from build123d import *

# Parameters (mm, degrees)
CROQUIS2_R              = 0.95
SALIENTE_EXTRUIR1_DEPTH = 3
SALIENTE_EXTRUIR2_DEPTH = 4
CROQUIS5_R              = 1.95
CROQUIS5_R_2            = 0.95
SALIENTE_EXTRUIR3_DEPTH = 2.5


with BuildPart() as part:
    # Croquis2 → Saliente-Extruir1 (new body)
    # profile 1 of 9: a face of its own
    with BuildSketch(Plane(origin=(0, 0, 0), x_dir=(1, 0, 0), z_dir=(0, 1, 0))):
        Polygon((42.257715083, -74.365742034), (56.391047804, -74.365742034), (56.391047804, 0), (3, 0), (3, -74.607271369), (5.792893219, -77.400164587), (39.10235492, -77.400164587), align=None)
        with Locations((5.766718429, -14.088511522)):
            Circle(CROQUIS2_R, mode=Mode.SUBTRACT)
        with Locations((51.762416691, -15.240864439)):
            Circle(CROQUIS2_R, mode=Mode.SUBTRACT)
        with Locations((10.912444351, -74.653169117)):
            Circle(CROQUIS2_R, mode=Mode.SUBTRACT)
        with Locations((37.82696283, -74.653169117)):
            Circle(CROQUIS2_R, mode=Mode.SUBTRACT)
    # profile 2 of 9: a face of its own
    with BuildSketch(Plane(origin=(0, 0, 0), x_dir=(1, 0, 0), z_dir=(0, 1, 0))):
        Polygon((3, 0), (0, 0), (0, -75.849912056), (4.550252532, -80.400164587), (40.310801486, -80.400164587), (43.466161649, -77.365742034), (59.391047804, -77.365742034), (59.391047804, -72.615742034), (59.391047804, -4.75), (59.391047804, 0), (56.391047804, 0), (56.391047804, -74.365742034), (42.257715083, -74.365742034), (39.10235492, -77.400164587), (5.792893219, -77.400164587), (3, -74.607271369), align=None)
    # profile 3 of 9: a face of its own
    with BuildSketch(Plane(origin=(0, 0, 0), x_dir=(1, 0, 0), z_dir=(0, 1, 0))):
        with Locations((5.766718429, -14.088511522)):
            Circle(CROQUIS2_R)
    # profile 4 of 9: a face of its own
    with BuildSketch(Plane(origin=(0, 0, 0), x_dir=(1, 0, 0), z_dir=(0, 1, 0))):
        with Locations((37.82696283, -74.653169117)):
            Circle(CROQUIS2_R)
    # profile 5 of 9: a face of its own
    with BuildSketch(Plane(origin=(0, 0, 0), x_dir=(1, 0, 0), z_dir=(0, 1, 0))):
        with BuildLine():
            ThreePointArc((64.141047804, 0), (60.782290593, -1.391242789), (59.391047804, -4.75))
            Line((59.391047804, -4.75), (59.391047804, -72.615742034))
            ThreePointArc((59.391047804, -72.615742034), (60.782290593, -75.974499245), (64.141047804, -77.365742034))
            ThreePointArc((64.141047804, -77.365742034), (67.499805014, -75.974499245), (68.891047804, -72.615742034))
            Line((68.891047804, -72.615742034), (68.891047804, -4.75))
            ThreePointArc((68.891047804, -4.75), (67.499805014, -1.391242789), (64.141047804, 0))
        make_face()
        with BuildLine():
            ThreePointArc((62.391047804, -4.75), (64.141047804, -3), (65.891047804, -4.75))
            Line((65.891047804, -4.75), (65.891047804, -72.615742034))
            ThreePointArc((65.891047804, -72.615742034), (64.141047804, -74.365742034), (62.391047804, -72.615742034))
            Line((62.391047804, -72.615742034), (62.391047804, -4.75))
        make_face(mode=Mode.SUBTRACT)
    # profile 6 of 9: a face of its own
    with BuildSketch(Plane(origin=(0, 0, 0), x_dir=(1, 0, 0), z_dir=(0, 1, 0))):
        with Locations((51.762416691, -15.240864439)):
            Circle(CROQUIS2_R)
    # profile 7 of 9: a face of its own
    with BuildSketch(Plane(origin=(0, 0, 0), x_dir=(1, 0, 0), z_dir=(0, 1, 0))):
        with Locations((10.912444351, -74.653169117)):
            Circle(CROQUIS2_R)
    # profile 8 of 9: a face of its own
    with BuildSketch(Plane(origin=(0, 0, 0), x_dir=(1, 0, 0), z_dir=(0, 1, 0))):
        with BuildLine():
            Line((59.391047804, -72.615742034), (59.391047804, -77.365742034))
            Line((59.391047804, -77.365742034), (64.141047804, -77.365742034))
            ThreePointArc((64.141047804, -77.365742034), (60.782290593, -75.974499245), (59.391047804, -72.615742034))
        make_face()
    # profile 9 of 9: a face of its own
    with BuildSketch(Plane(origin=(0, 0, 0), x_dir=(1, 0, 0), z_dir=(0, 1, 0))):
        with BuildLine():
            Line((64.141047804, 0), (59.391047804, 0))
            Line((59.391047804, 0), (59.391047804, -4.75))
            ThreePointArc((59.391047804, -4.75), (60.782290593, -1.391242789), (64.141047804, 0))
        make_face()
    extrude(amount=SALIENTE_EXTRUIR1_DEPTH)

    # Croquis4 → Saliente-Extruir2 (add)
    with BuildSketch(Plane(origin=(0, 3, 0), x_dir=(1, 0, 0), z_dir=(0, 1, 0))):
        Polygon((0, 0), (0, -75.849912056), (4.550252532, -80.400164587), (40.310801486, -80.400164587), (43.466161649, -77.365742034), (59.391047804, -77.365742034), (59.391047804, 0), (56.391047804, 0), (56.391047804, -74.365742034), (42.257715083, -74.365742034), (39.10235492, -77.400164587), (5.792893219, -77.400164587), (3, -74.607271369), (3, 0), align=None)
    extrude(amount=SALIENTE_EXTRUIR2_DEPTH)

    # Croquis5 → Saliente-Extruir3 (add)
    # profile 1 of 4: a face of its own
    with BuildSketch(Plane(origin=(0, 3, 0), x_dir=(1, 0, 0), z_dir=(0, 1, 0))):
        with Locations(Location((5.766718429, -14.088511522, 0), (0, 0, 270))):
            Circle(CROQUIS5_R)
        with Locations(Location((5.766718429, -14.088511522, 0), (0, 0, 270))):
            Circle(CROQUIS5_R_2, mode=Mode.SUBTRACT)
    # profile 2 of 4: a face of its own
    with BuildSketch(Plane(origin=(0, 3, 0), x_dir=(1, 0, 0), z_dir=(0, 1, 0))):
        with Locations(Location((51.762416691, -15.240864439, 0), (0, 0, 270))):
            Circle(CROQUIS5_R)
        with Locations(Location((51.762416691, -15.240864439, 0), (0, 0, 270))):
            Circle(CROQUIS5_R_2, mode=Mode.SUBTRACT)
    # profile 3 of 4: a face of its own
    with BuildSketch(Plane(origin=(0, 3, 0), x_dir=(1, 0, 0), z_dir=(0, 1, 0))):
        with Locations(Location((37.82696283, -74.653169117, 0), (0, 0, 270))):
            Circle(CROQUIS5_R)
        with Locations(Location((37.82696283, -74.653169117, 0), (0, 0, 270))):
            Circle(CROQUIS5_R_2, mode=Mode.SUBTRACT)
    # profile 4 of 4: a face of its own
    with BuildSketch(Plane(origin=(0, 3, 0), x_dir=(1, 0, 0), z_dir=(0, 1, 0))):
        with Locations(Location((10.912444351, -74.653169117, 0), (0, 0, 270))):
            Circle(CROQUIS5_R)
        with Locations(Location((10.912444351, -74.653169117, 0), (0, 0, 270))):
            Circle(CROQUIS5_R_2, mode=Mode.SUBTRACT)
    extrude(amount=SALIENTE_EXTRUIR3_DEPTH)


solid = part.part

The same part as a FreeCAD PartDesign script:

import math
import FreeCAD as App
import Part
import Sketcher

V = App.Vector
Q = App.Units.Quantity


def add_polygon(sketch, points):
    """Adds a closed chain of lines whose ends are joined by coincident constraints."""
    first, n = sketch.GeometryCount, len(points)
    for a, b in zip(points, points[1:] + points[:1]):
        sketch.addGeometry(Part.LineSegment(App.Vector(*a, 0), App.Vector(*b, 0)), False)
    for i in range(n):
        sketch.addConstraint(Sketcher.Constraint("Coincident", first + i, 2, first + (i + 1) % n, 1))

doc = App.newDocument("Part")
params = doc.addObject("Spreadsheet::Sheet", "Params")
for row, (alias, value) in enumerate([
    ("sketch1_radius", "4.75 mm"),
    ("sketch1_radius2", "1.75 mm"),
    ("pad1_length", "3 mm"),
    ("sketch2_width", "3 mm"),
    ("pad2_length", "4 mm"),
    ("sketch3_diameter", "3.9 mm"),
    ("sketch3_diameter2", "1.9 mm"),
    ("pad3_length", "2.5 mm"),
], start=1):
    params.set(f"A{row}", alias)
    params.set(f"B{row}", "=" + value)
    params.setAlias(f"B{row}", alias)

body = doc.addObject("PartDesign::Body", "Body")

# Sketch on XZ plane
sketch1 = body.newObject("Sketcher::SketchObject", "Sketch")
sketch1.AttachmentSupport = (doc.getObject("XZ_Plane"), [""])
sketch1.MapMode = "FlatFace"
sketch1.addGeometry(Part.LineSegment(V(0, 0, 0), V(0, 75.8, 0)), False)
sketch1.addGeometry(Part.LineSegment(V(0, 75.8, 0), V(4.6, 80.4, 0)), False)
sketch1.addGeometry(Part.LineSegment(V(4.6, 80.4, 0), V(40.3, 80.4, 0)), False)
sketch1.addGeometry(Part.LineSegment(V(40.3, 80.4, 0), V(43.5, 77.4, 0)), False)
sketch1.addGeometry(Part.LineSegment(V(43.5, 77.4, 0), V(64.1, 77.4, 0)), False)
sketch1.addGeometry(Part.ArcOfCircle(Part.Circle(V(64.1, 72.6, 0), V(0, 0, 1), 4.8), math.radians(0), math.radians(90)), False)
sketch1.addGeometry(Part.LineSegment(V(68.9, 72.6, 0), V(68.9, 4.8, 0)), False)
sketch1.addGeometry(Part.ArcOfCircle(Part.Circle(V(64.1, 4.8, 0), V(0, 0, 1), 4.8), math.radians(-90), math.radians(0)), False)
sketch1.addGeometry(Part.LineSegment(V(64.1, 0, 0), V(0, 0, 0)), False)
sketch1.addGeometry(Part.ArcOfCircle(Part.Circle(V(64.1, 4.8, 0), V(0, 0, 1), 1.8), math.radians(180), math.radians(360)), False)
sketch1.addGeometry(Part.LineSegment(V(65.9, 4.8, 0), V(65.9, 72.6, 0)), False)
sketch1.addGeometry(Part.ArcOfCircle(Part.Circle(V(64.1, 72.6, 0), V(0, 0, 1), 1.8), math.radians(0), math.radians(180)), False)
sketch1.addGeometry(Part.LineSegment(V(62.4, 72.6, 0), V(62.4, 4.8, 0)), False)
sketch1.addConstraint(Sketcher.Constraint("Coincident", 0, 2, 1, 1))
sketch1.addConstraint(Sketcher.Constraint("Coincident", 1, 2, 2, 1))
sketch1.addConstraint(Sketcher.Constraint("Coincident", 2, 2, 3, 1))
sketch1.addConstraint(Sketcher.Constraint("Coincident", 3, 2, 4, 1))
sketch1.addConstraint(Sketcher.Constraint("Tangent", 4, 2, 5, 2))
sketch1.addConstraint(Sketcher.Constraint("Tangent", 5, 1, 6, 1))
sketch1.addConstraint(Sketcher.Constraint("Tangent", 6, 2, 7, 2))
sketch1.addConstraint(Sketcher.Constraint("Tangent", 7, 1, 8, 1))
sketch1.addConstraint(Sketcher.Constraint("Coincident", 8, 2, 0, 1))
sketch1.addConstraint(Sketcher.Constraint("Tangent", 9, 2, 10, 1))
sketch1.addConstraint(Sketcher.Constraint("Tangent", 10, 2, 11, 1))
sketch1.addConstraint(Sketcher.Constraint("Tangent", 11, 2, 12, 1))
sketch1.addConstraint(Sketcher.Constraint("Tangent", 12, 2, 9, 1))
sketch1.addConstraint(Sketcher.Constraint("Vertical", 0))
sketch1.addConstraint(Sketcher.Constraint("Horizontal", 2))
sketch1.addConstraint(Sketcher.Constraint("Horizontal", 4))
sketch1.addConstraint(Sketcher.Constraint("Vertical", 6))
sketch1.addConstraint(Sketcher.Constraint("Horizontal", 8))
sketch1.addConstraint(Sketcher.Constraint("Vertical", 10))
sketch1.addConstraint(Sketcher.Constraint("Vertical", 12))
sketch1.addConstraint(Sketcher.Constraint("Coincident", 8, 2, -1, 1))
sketch1.addConstraint(Sketcher.Constraint("Coincident", 9, 3, 7, 3))
sketch1.addConstraint(Sketcher.Constraint("Coincident", 11, 3, 5, 3))
sketch1.addConstraint(Sketcher.Constraint("Angle", 1, Q("45 deg")))
sketch1.addConstraint(Sketcher.Constraint("Radius", 5, 4.75))
sketch1.addConstraint(Sketcher.Constraint("Radius", 9, 1.75))
sketch1.addConstraint(Sketcher.Constraint("DistanceX", 2, 1, 2, 2, 35.760549))
sketch1.addConstraint(Sketcher.Constraint("DistanceX", -1, 1, 2, 2, 40.310801))
sketch1.addConstraint(Sketcher.Constraint("DistanceX", 4, 1, 4, 2, 20.674886))
sketch1.addConstraint(Sketcher.Constraint("DistanceX", 8, 2, 8, 1, 64.141048))
sketch1.addConstraint(Sketcher.Constraint("DistanceY", 0, 1, 0, 2, 75.849912))
sketch1.addConstraint(Sketcher.Constraint("DistanceY", 6, 2, 6, 1, 67.865742))
sketch1.setExpression("Constraints[24]", "Params.sketch1_radius")
sketch1.setExpression("Constraints[25]", "Params.sketch1_radius2")
pad1 = body.newObject("PartDesign::Pad", "Pad")
pad1.Profile = sketch1
pad1.setExpression("Length", "Params.pad1_length")
pad1.Reversed = True

# Sketch on XZ plane
sketch2 = body.newObject("Sketcher::SketchObject", "Sketch001")
sketch2.AttachmentSupport = (doc.getObject("XZ_Plane"), [""])
sketch2.MapMode = "FlatFace"
sketch2.AttachmentOffset = App.Placement(V(0, 0, -3), App.Rotation())
add_polygon(sketch2, [(0, 0), (0, 75.8), (4.6, 80.4), (40.3, 80.4), (43.5, 77.4), (59.4, 77.4), (59.4, 0), (56.4, 0), (56.4, 74.4), (42.3, 74.4), (39.1, 77.4), (5.8, 77.4), (3, 74.6), (3, 0)])  # lines 0-13
sketch2.addConstraint(Sketcher.Constraint("Vertical", 0))
sketch2.addConstraint(Sketcher.Constraint("Horizontal", 2))
sketch2.addConstraint(Sketcher.Constraint("Horizontal", 4))
sketch2.addConstraint(Sketcher.Constraint("Vertical", 5))
sketch2.addConstraint(Sketcher.Constraint("Horizontal", 6))
sketch2.addConstraint(Sketcher.Constraint("Vertical", 7))
sketch2.addConstraint(Sketcher.Constraint("Horizontal", 8))
sketch2.addConstraint(Sketcher.Constraint("Horizontal", 10))
sketch2.addConstraint(Sketcher.Constraint("Vertical", 12))
sketch2.addConstraint(Sketcher.Constraint("Horizontal", 13))
sketch2.addConstraint(Sketcher.Constraint("Coincident", 13, 2, -1, 1))
sketch2.addConstraint(Sketcher.Constraint("PointOnObject", 5, 2, -1))
sketch2.addConstraint(Sketcher.Constraint("Parallel", 3, 9))
sketch2.addConstraint(Sketcher.Constraint("Parallel", 1, 11))
sketch2.addConstraint(Sketcher.Constraint("Equal", 6, 13))
sketch2.addConstraint(Sketcher.Constraint("Equal", 3, 9))
sketch2.addConstraint(Sketcher.Constraint("DistanceX", 6, 2, 6, 1, 3.0))
sketch2.addConstraint(Sketcher.Constraint("Angle", 1, Q("45 deg")))
sketch2.addConstraint(Sketcher.Constraint("DistanceY", 7, 2, 4, 2, 3.0))
sketch2.addConstraint(Sketcher.Constraint("DistanceX", 2, 1, 2, 2, 35.760549))
sketch2.addConstraint(Sketcher.Constraint("DistanceX", 10, 2, 10, 1, 33.309462))
sketch2.addConstraint(Sketcher.Constraint("DistanceY", 12, 2, 12, 1, 74.607271))
sketch2.addConstraint(Sketcher.Constraint("DistanceX", -1, 1, 2, 2, 40.310801))
sketch2.addConstraint(Sketcher.Constraint("DistanceX", 4, 1, 4, 2, 15.924886))
sketch2.addConstraint(Sketcher.Constraint("DistanceX", 8, 2, 8, 1, 14.133333))
sketch2.addConstraint(Sketcher.Constraint("DistanceY", 5, 2, 5, 1, 77.365742))
sketch2.addConstraint(Sketcher.Constraint("DistanceX", -1, 1, 3, 2, 43.466162))
sketch2.setExpression("Constraints[30]", "Params.sketch2_width")
pad2 = body.newObject("PartDesign::Pad", "Pad001")
pad2.Profile = sketch2
pad2.setExpression("Length", "Params.pad2_length")
pad2.Reversed = True

# Sketch on XZ plane
sketch3 = body.newObject("Sketcher::SketchObject", "Sketch002")
sketch3.AttachmentSupport = (doc.getObject("XZ_Plane"), [""])
sketch3.MapMode = "FlatFace"
sketch3.AttachmentOffset = App.Placement(V(0, 0, -3), App.Rotation())
sketch3.addGeometry(Part.Circle(V(5.8, 14.1, 0), V(0, 0, 1), 1.9), False)
sketch3.addGeometry(Part.Circle(V(5.8, 14.1, 0), V(0, 0, 1), 0.9), False)
sketch3.addGeometry(Part.Circle(V(51.8, 15.2, 0), V(0, 0, 1), 1.9), False)
sketch3.addGeometry(Part.Circle(V(51.8, 15.2, 0), V(0, 0, 1), 0.9), False)
sketch3.addGeometry(Part.Circle(V(37.8, 74.7, 0), V(0, 0, 1), 1.9), False)
sketch3.addGeometry(Part.Circle(V(37.8, 74.7, 0), V(0, 0, 1), 0.9), False)
sketch3.addGeometry(Part.Circle(V(10.9, 74.7, 0), V(0, 0, 1), 1.9), False)
sketch3.addGeometry(Part.Circle(V(10.9, 74.7, 0), V(0, 0, 1), 0.9), False)
sketch3.addConstraint(Sketcher.Constraint("Coincident", 1, 3, 0, 3))
sketch3.addConstraint(Sketcher.Constraint("Coincident", 3, 3, 2, 3))
sketch3.addConstraint(Sketcher.Constraint("Coincident", 5, 3, 4, 3))
sketch3.addConstraint(Sketcher.Constraint("Coincident", 7, 3, 6, 3))
sketch3.addConstraint(Sketcher.Constraint("Equal", 0, 2))
sketch3.addConstraint(Sketcher.Constraint("Equal", 1, 3))
sketch3.addConstraint(Sketcher.Constraint("Equal", 2, 4))
sketch3.addConstraint(Sketcher.Constraint("Equal", 3, 5))
sketch3.addConstraint(Sketcher.Constraint("Equal", 4, 6))
sketch3.addConstraint(Sketcher.Constraint("Equal", 5, 7))
sketch3.addConstraint(Sketcher.Constraint("Horizontal", 5, 3, 6, 3))
sketch3.addConstraint(Sketcher.Constraint("Diameter", 0, 3.9))
sketch3.addConstraint(Sketcher.Constraint("Diameter", 1, 1.9))
sketch3.addConstraint(Sketcher.Constraint("DistanceX", 0, 3, 2, 3, 45.995698))
sketch3.addConstraint(Sketcher.Constraint("DistanceX", -1, 1, 0, 3, 5.766718))
sketch3.addConstraint(Sketcher.Constraint("DistanceY", -1, 1, 0, 3, 14.088512))
sketch3.addConstraint(Sketcher.Constraint("DistanceY", -1, 1, 4, 3, 74.653169))
sketch3.addConstraint(Sketcher.Constraint("DistanceX", 6, 3, 4, 3, 26.914518))
sketch3.addConstraint(Sketcher.Constraint("DistanceY", -1, 1, 2, 3, 15.240864))
sketch3.addConstraint(Sketcher.Constraint("DistanceX", -1, 1, 4, 3, 37.826963))
sketch3.setExpression("Constraints[11]", "Params.sketch3_diameter")
sketch3.setExpression("Constraints[12]", "Params.sketch3_diameter2")
pad3 = body.newObject("PartDesign::Pad", "Pad002")
pad3.Profile = sketch3
pad3.setExpression("Length", "Params.pad3_length")
pad3.Reversed = True

doc.recompute()
